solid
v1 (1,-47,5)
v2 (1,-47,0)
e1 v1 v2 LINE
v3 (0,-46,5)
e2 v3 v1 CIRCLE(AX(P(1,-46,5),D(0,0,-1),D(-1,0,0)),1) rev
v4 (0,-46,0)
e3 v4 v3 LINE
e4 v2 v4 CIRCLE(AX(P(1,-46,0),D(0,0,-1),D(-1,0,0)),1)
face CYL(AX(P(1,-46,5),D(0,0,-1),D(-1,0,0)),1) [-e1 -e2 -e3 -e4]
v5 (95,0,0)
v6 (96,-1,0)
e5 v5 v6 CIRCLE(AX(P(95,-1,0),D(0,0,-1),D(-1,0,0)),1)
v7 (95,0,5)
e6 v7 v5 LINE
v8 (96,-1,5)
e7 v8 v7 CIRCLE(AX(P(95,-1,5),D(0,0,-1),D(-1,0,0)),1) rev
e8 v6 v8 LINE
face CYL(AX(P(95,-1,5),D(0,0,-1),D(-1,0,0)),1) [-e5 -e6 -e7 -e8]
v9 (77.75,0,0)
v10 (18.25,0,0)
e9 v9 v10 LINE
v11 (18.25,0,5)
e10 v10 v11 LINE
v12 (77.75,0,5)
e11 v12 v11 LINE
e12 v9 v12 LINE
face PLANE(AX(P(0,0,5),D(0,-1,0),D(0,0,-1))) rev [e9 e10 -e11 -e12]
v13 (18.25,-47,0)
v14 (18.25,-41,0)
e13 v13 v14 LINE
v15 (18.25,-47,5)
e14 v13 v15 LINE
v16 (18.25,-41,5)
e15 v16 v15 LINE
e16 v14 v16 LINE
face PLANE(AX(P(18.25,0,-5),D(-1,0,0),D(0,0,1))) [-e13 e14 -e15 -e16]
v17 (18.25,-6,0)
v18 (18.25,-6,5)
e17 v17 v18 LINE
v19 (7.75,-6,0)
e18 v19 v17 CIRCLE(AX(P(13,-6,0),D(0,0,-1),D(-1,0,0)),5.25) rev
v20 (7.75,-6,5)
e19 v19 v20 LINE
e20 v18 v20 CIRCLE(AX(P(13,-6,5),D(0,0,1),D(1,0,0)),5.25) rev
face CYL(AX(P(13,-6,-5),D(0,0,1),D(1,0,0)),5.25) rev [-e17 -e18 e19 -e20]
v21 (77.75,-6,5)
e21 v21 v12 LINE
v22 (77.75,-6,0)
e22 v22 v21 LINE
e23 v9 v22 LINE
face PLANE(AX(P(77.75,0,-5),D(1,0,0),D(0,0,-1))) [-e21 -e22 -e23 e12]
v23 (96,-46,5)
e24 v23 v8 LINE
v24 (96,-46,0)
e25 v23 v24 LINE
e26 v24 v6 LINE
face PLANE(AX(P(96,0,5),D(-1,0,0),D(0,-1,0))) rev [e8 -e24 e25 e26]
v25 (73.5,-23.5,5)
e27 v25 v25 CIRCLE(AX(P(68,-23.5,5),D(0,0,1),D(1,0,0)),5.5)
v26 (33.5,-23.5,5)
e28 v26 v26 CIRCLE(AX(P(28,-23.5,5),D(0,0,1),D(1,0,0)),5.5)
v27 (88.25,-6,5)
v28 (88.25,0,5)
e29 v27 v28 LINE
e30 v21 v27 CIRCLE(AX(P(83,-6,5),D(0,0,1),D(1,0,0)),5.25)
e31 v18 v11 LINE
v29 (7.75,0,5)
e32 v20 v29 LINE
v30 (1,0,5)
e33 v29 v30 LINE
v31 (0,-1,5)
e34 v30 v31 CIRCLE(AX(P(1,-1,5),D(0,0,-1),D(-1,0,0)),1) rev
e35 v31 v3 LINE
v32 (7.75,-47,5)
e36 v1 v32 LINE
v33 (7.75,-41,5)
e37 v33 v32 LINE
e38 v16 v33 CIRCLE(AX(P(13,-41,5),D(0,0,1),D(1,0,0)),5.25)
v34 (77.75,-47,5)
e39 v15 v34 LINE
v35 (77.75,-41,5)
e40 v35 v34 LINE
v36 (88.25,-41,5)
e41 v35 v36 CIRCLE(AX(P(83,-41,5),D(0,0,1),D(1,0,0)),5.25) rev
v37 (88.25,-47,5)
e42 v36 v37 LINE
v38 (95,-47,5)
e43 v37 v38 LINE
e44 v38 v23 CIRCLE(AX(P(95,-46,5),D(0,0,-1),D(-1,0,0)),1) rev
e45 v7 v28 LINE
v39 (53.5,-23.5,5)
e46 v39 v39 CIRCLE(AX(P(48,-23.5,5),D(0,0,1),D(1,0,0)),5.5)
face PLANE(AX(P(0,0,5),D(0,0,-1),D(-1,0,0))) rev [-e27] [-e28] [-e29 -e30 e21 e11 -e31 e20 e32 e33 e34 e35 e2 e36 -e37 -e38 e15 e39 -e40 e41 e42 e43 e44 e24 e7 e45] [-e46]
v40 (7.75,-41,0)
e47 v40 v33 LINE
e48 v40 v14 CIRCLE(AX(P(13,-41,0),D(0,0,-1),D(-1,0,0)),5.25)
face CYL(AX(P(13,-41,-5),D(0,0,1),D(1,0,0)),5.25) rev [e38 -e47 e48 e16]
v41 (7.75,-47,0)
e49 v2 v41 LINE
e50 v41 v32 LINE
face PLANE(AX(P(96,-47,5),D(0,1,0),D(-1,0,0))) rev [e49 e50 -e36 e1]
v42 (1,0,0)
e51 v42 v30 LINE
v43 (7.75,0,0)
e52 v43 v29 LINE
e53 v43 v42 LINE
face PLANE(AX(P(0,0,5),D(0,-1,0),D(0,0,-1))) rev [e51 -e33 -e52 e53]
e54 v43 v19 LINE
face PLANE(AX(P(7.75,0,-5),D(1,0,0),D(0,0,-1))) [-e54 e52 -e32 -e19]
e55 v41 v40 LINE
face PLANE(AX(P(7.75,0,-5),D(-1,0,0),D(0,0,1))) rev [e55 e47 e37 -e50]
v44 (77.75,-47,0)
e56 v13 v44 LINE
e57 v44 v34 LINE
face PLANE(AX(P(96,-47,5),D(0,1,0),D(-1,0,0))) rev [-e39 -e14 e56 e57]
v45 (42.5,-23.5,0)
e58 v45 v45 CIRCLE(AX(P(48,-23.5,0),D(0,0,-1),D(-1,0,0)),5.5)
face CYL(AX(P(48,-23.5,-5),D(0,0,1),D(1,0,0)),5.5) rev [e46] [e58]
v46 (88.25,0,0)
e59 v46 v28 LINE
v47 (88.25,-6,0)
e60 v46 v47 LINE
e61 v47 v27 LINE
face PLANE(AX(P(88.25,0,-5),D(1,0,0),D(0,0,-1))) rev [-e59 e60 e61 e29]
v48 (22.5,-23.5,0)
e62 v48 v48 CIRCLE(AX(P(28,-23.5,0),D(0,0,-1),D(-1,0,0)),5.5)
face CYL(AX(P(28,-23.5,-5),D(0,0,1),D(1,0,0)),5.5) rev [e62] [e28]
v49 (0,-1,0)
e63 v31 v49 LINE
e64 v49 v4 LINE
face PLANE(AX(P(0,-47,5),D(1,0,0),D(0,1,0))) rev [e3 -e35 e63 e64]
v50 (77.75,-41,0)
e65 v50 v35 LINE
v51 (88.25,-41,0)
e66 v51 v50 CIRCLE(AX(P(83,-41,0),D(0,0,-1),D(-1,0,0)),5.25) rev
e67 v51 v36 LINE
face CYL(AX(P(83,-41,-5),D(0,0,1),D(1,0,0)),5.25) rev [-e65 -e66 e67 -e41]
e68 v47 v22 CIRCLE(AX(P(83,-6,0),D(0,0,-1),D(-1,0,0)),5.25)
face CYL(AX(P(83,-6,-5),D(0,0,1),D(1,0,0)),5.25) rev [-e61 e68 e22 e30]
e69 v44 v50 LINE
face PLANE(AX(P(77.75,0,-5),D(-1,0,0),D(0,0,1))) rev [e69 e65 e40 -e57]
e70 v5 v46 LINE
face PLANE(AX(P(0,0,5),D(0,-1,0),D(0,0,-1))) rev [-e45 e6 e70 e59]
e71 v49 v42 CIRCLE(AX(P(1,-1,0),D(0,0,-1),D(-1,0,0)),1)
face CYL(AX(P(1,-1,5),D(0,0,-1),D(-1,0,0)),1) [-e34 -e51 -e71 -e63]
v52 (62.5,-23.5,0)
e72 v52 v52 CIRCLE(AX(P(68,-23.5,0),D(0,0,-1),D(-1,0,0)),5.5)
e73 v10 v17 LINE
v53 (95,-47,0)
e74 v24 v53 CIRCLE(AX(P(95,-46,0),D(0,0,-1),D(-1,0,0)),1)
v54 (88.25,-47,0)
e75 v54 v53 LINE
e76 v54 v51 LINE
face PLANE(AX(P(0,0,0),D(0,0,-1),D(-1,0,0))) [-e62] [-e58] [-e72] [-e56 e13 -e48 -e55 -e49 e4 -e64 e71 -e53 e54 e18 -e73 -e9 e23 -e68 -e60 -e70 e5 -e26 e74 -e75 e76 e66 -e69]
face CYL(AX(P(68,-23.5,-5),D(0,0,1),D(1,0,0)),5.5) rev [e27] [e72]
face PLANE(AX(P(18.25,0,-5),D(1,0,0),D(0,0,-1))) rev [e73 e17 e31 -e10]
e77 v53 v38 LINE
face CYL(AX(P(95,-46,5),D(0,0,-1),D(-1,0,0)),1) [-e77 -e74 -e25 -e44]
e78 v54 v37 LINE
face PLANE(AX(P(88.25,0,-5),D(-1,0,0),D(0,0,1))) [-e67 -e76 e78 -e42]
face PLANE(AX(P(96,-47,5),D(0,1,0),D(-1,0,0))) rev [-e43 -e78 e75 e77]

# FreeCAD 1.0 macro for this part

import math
import FreeCAD as App
import Part
import Sketcher
from FreeCAD import Vector


def edges_at(feature, points):
    """Names of the edges that pass closest to the given points."""
    edges = feature.Shape.Edges
    near = lambda p: min(range(len(edges)), key=lambda i: edges[i].distToShape(Part.Vertex(*p))[0])
    return sorted({f"Edge{near(p) + 1}" for p in points})

doc = App.newDocument("Part")
body = doc.addObject("PartDesign::Body", "Body")

# Sketch on XY plane
sketch1 = doc.addObject("Sketcher::SketchObject", "Sketch")
body.addObject(sketch1)
sketch1.AttachmentSupport = (doc.XY_Plane, [""])
sketch1.MapMode = "FlatFace"
sketch1.addGeometry([
    Part.LineSegment(Vector(0, 0, 0), Vector(0, -47, 0)),
    Part.LineSegment(Vector(0, -47, 0), Vector(96, -47, 0)),
    Part.LineSegment(Vector(96, -47, 0), Vector(96, 0, 0)),
    Part.LineSegment(Vector(96, 0, 0), Vector(0, 0, 0)),
], False)
sketch1.addConstraint([
    Sketcher.Constraint("Coincident", 0, 2, 1, 1),
    Sketcher.Constraint("Coincident", 1, 2, 2, 1),
    Sketcher.Constraint("Coincident", 2, 2, 3, 1),
    Sketcher.Constraint("Coincident", 3, 2, 0, 1),
    Sketcher.Constraint("Vertical", 0),
    Sketcher.Constraint("Horizontal", 1),
    Sketcher.Constraint("Vertical", 2),
    Sketcher.Constraint("Horizontal", 3),
    Sketcher.Constraint("Coincident", 3, 2, -1, 1),
    Sketcher.Constraint("DistanceX", 1, 1, 1, 2, 96.0),
    Sketcher.Constraint("DistanceY", 0, 2, 0, 1, 47.0),
])
pad1 = doc.addObject("PartDesign::Pad", "Pad")
body.addObject(pad1)
pad1.Profile = sketch1
pad1.Length = 5
doc.recompute()

fillet = doc.addObject("PartDesign::Fillet", "Fillet")
body.addObject(fillet)
fillet.Base = (pad1, edges_at(pad1, [
    (0, 0, 2.5),
    (96, 0, 2.5),
    (96, -47, 2.5),
    (0, -47, 2.5),
]))
fillet.Radius = 1

# Sketch on XY plane
sketch2 = doc.addObject("Sketcher::SketchObject", "Sketch001")
body.addObject(sketch2)
sketch2.AttachmentSupport = (doc.XY_Plane, [""])
sketch2.MapMode = "FlatFace"
sketch2.AttachmentOffset = App.Placement(Vector(0, 0, 5), App.Rotation())
sketch2.addGeometry([
    Part.Circle(Vector(28, -24, 0), Vector(0, 0, 1), 6),  # 0
    Part.ArcOfCircle(Part.Circle(Vector(48, -24, 0), Vector(0, 0, 1), 5), math.radians(-90), math.radians(0)),  # 1
    Part.ArcOfCircle(Part.Circle(Vector(48, -23, 0), Vector(0, 0, 1), 5), math.radians(0), math.radians(90)),  # 2
    Part.ArcOfCircle(Part.Circle(Vector(48, -23, 0), Vector(0, 0, 1), 5), math.radians(90), math.radians(180)),  # 3
    Part.ArcOfCircle(Part.Circle(Vector(48, -24, 0), Vector(0, 0, 1), 5), math.radians(180), math.radians(270)),  # 4
    Part.Circle(Vector(68, -24, 0), Vector(0, 0, 1), 6),  # 5
], False)
sketch2.addConstraint([
    Sketcher.Constraint("Tangent", 1, 2, 2, 1),
    Sketcher.Constraint("Tangent", 2, 2, 3, 1),
    Sketcher.Constraint("Tangent", 3, 2, 4, 1),
    Sketcher.Constraint("Tangent", 4, 2, 1, 1),
    Sketcher.Constraint("Equal", 0, 1),
    Sketcher.Constraint("Equal", 1, 2),
    Sketcher.Constraint("Equal", 4, 5),
    Sketcher.Constraint("Horizontal", 0, 3, 1, 3),
    Sketcher.Constraint("Horizontal", 4, 3, 5, 3),
    Sketcher.Constraint("Horizontal", 5, 3, 1, 2),
    Sketcher.Constraint("Horizontal", 1, 2, 3, 2),
    Sketcher.Constraint("Vertical", 4, 3, 2, 2),
    Sketcher.Constraint("Vertical", 2, 2, 4, 2),
    Sketcher.Constraint("Diameter", 0, 11.0),
    Sketcher.Constraint("DistanceX", -1, 1, 0, 3, 28.0),
    Sketcher.Constraint("DistanceX", -1, 1, 1, 3, 48.0),
    Sketcher.Constraint("DistanceX", -1, 1, 5, 3, 68.0),
    Sketcher.Constraint("DistanceY", 2, 2, -1, 1, 18.0),
])
pocket1 = doc.addObject("PartDesign::Pocket", "Pocket")
body.addObject(pocket1)
pocket1.Profile = sketch2
pocket1.Length = 10

# Sketch on XY plane
sketch3 = doc.addObject("Sketcher::SketchObject", "Sketch002")
body.addObject(sketch3)
sketch3.AttachmentSupport = (doc.XY_Plane, [""])
sketch3.MapMode = "FlatFace"
sketch3.AttachmentOffset = App.Placement(Vector(0, 0, 5), App.Rotation())
sketch3.addGeometry([
    Part.ArcOfCircle(Part.Circle(Vector(83, -6, 0), Vector(0, 0, 1), 5), math.radians(180), math.radians(360)),  # 0
    Part.LineSegment(Vector(88, -6, 0), Vector(88, 0, 0)),  # 1
    Part.LineSegment(Vector(88, 0, 0), Vector(78, 0, 0)),  # 2
    Part.LineSegment(Vector(78, 0, 0), Vector(78, -6, 0)),  # 3
    Part.ArcOfCircle(Part.Circle(Vector(13, -6, 0), Vector(0, 0, 1), 5), math.radians(180), math.radians(360)),  # 4
    Part.LineSegment(Vector(18, -6, 0), Vector(18, 0, 0)),  # 5
    Part.LineSegment(Vector(18, 0, 0), Vector(8, 0, 0)),  # 6
    Part.LineSegment(Vector(8, 0, 0), Vector(8, -6, 0)),  # 7
    Part.ArcOfCircle(Part.Circle(Vector(13, -41, 0), Vector(0, 0, 1), 5), math.radians(0), math.radians(180)),  # 8
    Part.LineSegment(Vector(8, -41, 0), Vector(8, -47, 0)),  # 9
    Part.LineSegment(Vector(8, -47, 0), Vector(18, -47, 0)),  # 10
    Part.LineSegment(Vector(18, -47, 0), Vector(18, -41, 0)),  # 11
    Part.ArcOfCircle(Part.Circle(Vector(83, -41, 0), Vector(0, 0, 1), 5), math.radians(0), math.radians(180)),  # 12
    Part.LineSegment(Vector(78, -41, 0), Vector(78, -47, 0)),  # 13
    Part.LineSegment(Vector(78, -47, 0), Vector(88, -47, 0)),  # 14
    Part.LineSegment(Vector(88, -47, 0), Vector(88, -41, 0)),  # 15
], False)
sketch3.addConstraint([
    Sketcher.Constraint("Tangent", 0, 2, 1, 1),
    Sketcher.Constraint("Coincident", 1, 2, 2, 1),
    Sketcher.Constraint("Coincident", 2, 2, 3, 1),
    Sketcher.Constraint("Tangent", 3, 2, 0, 1),
    Sketcher.Constraint("Tangent", 4, 2, 5, 1),
    Sketcher.Constraint("Coincident", 5, 2, 6, 1),
    Sketcher.Constraint("Coincident", 6, 2, 7, 1),
    Sketcher.Constraint("Tangent", 7, 2, 4, 1),
    Sketcher.Constraint("Tangent", 8, 2, 9, 1),
    Sketcher.Constraint("Coincident", 9, 2, 10, 1),
    Sketcher.Constraint("Coincident", 10, 2, 11, 1),
    Sketcher.Constraint("Tangent", 11, 2, 8, 1),
    Sketcher.Constraint("Tangent", 12, 2, 13, 1),
    Sketcher.Constraint("Coincident", 13, 2, 14, 1),
    Sketcher.Constraint("Coincident", 14, 2, 15, 1),
    Sketcher.Constraint("Tangent", 15, 2, 12, 1),
    Sketcher.Constraint("Vertical", 1),
    Sketcher.Constraint("Horizontal", 2),
    Sketcher.Constraint("Vertical", 3),
    Sketcher.Constraint("Vertical", 5),
    Sketcher.Constraint("Horizontal", 6),
    Sketcher.Constraint("Vertical", 7),
    Sketcher.Constraint("Vertical", 9),
    Sketcher.Constraint("Horizontal", 10),
    Sketcher.Constraint("Vertical", 11),
    Sketcher.Constraint("Vertical", 13),
    Sketcher.Constraint("Horizontal", 14),
    Sketcher.Constraint("Vertical", 15),
    Sketcher.Constraint("Equal", 0, 4),
    Sketcher.Constraint("Equal", 4, 8),
    Sketcher.Constraint("Equal", 8, 12),
    Sketcher.Constraint("PointOnObject", 1, 2, -1),
    Sketcher.Constraint("PointOnObject", 5, 2, -1),
    Sketcher.Constraint("Horizontal", 0, 3, 4, 3),
    Sketcher.Constraint("Horizontal", 8, 3, 12, 3),
    Sketcher.Constraint("Horizontal", 10, 2, 13, 2),
    Sketcher.Constraint("Vertical", 4, 3, 8, 3),
    Sketcher.Constraint("Vertical", 0, 3, 12, 3),
    Sketcher.Constraint("Equal", 7, 9),
    Sketcher.Constraint("DistanceY", 1, 1, 1, 2, 6.0),
    Sketcher.Constraint("Radius", 0, 5.25),
    Sketcher.Constraint("DistanceX", -1, 1, 0, 3, 83.0),
    Sketcher.Constraint("DistanceX", -1, 1, 4, 3, 13.0),
    Sketcher.Constraint("DistanceY", 8, 3, -1, 1, 41.0),
])
pocket2 = doc.addObject("PartDesign::Pocket", "Pocket001")
body.addObject(pocket2)
pocket2.Profile = sketch3
pocket2.Length = 10

doc.recompute()
